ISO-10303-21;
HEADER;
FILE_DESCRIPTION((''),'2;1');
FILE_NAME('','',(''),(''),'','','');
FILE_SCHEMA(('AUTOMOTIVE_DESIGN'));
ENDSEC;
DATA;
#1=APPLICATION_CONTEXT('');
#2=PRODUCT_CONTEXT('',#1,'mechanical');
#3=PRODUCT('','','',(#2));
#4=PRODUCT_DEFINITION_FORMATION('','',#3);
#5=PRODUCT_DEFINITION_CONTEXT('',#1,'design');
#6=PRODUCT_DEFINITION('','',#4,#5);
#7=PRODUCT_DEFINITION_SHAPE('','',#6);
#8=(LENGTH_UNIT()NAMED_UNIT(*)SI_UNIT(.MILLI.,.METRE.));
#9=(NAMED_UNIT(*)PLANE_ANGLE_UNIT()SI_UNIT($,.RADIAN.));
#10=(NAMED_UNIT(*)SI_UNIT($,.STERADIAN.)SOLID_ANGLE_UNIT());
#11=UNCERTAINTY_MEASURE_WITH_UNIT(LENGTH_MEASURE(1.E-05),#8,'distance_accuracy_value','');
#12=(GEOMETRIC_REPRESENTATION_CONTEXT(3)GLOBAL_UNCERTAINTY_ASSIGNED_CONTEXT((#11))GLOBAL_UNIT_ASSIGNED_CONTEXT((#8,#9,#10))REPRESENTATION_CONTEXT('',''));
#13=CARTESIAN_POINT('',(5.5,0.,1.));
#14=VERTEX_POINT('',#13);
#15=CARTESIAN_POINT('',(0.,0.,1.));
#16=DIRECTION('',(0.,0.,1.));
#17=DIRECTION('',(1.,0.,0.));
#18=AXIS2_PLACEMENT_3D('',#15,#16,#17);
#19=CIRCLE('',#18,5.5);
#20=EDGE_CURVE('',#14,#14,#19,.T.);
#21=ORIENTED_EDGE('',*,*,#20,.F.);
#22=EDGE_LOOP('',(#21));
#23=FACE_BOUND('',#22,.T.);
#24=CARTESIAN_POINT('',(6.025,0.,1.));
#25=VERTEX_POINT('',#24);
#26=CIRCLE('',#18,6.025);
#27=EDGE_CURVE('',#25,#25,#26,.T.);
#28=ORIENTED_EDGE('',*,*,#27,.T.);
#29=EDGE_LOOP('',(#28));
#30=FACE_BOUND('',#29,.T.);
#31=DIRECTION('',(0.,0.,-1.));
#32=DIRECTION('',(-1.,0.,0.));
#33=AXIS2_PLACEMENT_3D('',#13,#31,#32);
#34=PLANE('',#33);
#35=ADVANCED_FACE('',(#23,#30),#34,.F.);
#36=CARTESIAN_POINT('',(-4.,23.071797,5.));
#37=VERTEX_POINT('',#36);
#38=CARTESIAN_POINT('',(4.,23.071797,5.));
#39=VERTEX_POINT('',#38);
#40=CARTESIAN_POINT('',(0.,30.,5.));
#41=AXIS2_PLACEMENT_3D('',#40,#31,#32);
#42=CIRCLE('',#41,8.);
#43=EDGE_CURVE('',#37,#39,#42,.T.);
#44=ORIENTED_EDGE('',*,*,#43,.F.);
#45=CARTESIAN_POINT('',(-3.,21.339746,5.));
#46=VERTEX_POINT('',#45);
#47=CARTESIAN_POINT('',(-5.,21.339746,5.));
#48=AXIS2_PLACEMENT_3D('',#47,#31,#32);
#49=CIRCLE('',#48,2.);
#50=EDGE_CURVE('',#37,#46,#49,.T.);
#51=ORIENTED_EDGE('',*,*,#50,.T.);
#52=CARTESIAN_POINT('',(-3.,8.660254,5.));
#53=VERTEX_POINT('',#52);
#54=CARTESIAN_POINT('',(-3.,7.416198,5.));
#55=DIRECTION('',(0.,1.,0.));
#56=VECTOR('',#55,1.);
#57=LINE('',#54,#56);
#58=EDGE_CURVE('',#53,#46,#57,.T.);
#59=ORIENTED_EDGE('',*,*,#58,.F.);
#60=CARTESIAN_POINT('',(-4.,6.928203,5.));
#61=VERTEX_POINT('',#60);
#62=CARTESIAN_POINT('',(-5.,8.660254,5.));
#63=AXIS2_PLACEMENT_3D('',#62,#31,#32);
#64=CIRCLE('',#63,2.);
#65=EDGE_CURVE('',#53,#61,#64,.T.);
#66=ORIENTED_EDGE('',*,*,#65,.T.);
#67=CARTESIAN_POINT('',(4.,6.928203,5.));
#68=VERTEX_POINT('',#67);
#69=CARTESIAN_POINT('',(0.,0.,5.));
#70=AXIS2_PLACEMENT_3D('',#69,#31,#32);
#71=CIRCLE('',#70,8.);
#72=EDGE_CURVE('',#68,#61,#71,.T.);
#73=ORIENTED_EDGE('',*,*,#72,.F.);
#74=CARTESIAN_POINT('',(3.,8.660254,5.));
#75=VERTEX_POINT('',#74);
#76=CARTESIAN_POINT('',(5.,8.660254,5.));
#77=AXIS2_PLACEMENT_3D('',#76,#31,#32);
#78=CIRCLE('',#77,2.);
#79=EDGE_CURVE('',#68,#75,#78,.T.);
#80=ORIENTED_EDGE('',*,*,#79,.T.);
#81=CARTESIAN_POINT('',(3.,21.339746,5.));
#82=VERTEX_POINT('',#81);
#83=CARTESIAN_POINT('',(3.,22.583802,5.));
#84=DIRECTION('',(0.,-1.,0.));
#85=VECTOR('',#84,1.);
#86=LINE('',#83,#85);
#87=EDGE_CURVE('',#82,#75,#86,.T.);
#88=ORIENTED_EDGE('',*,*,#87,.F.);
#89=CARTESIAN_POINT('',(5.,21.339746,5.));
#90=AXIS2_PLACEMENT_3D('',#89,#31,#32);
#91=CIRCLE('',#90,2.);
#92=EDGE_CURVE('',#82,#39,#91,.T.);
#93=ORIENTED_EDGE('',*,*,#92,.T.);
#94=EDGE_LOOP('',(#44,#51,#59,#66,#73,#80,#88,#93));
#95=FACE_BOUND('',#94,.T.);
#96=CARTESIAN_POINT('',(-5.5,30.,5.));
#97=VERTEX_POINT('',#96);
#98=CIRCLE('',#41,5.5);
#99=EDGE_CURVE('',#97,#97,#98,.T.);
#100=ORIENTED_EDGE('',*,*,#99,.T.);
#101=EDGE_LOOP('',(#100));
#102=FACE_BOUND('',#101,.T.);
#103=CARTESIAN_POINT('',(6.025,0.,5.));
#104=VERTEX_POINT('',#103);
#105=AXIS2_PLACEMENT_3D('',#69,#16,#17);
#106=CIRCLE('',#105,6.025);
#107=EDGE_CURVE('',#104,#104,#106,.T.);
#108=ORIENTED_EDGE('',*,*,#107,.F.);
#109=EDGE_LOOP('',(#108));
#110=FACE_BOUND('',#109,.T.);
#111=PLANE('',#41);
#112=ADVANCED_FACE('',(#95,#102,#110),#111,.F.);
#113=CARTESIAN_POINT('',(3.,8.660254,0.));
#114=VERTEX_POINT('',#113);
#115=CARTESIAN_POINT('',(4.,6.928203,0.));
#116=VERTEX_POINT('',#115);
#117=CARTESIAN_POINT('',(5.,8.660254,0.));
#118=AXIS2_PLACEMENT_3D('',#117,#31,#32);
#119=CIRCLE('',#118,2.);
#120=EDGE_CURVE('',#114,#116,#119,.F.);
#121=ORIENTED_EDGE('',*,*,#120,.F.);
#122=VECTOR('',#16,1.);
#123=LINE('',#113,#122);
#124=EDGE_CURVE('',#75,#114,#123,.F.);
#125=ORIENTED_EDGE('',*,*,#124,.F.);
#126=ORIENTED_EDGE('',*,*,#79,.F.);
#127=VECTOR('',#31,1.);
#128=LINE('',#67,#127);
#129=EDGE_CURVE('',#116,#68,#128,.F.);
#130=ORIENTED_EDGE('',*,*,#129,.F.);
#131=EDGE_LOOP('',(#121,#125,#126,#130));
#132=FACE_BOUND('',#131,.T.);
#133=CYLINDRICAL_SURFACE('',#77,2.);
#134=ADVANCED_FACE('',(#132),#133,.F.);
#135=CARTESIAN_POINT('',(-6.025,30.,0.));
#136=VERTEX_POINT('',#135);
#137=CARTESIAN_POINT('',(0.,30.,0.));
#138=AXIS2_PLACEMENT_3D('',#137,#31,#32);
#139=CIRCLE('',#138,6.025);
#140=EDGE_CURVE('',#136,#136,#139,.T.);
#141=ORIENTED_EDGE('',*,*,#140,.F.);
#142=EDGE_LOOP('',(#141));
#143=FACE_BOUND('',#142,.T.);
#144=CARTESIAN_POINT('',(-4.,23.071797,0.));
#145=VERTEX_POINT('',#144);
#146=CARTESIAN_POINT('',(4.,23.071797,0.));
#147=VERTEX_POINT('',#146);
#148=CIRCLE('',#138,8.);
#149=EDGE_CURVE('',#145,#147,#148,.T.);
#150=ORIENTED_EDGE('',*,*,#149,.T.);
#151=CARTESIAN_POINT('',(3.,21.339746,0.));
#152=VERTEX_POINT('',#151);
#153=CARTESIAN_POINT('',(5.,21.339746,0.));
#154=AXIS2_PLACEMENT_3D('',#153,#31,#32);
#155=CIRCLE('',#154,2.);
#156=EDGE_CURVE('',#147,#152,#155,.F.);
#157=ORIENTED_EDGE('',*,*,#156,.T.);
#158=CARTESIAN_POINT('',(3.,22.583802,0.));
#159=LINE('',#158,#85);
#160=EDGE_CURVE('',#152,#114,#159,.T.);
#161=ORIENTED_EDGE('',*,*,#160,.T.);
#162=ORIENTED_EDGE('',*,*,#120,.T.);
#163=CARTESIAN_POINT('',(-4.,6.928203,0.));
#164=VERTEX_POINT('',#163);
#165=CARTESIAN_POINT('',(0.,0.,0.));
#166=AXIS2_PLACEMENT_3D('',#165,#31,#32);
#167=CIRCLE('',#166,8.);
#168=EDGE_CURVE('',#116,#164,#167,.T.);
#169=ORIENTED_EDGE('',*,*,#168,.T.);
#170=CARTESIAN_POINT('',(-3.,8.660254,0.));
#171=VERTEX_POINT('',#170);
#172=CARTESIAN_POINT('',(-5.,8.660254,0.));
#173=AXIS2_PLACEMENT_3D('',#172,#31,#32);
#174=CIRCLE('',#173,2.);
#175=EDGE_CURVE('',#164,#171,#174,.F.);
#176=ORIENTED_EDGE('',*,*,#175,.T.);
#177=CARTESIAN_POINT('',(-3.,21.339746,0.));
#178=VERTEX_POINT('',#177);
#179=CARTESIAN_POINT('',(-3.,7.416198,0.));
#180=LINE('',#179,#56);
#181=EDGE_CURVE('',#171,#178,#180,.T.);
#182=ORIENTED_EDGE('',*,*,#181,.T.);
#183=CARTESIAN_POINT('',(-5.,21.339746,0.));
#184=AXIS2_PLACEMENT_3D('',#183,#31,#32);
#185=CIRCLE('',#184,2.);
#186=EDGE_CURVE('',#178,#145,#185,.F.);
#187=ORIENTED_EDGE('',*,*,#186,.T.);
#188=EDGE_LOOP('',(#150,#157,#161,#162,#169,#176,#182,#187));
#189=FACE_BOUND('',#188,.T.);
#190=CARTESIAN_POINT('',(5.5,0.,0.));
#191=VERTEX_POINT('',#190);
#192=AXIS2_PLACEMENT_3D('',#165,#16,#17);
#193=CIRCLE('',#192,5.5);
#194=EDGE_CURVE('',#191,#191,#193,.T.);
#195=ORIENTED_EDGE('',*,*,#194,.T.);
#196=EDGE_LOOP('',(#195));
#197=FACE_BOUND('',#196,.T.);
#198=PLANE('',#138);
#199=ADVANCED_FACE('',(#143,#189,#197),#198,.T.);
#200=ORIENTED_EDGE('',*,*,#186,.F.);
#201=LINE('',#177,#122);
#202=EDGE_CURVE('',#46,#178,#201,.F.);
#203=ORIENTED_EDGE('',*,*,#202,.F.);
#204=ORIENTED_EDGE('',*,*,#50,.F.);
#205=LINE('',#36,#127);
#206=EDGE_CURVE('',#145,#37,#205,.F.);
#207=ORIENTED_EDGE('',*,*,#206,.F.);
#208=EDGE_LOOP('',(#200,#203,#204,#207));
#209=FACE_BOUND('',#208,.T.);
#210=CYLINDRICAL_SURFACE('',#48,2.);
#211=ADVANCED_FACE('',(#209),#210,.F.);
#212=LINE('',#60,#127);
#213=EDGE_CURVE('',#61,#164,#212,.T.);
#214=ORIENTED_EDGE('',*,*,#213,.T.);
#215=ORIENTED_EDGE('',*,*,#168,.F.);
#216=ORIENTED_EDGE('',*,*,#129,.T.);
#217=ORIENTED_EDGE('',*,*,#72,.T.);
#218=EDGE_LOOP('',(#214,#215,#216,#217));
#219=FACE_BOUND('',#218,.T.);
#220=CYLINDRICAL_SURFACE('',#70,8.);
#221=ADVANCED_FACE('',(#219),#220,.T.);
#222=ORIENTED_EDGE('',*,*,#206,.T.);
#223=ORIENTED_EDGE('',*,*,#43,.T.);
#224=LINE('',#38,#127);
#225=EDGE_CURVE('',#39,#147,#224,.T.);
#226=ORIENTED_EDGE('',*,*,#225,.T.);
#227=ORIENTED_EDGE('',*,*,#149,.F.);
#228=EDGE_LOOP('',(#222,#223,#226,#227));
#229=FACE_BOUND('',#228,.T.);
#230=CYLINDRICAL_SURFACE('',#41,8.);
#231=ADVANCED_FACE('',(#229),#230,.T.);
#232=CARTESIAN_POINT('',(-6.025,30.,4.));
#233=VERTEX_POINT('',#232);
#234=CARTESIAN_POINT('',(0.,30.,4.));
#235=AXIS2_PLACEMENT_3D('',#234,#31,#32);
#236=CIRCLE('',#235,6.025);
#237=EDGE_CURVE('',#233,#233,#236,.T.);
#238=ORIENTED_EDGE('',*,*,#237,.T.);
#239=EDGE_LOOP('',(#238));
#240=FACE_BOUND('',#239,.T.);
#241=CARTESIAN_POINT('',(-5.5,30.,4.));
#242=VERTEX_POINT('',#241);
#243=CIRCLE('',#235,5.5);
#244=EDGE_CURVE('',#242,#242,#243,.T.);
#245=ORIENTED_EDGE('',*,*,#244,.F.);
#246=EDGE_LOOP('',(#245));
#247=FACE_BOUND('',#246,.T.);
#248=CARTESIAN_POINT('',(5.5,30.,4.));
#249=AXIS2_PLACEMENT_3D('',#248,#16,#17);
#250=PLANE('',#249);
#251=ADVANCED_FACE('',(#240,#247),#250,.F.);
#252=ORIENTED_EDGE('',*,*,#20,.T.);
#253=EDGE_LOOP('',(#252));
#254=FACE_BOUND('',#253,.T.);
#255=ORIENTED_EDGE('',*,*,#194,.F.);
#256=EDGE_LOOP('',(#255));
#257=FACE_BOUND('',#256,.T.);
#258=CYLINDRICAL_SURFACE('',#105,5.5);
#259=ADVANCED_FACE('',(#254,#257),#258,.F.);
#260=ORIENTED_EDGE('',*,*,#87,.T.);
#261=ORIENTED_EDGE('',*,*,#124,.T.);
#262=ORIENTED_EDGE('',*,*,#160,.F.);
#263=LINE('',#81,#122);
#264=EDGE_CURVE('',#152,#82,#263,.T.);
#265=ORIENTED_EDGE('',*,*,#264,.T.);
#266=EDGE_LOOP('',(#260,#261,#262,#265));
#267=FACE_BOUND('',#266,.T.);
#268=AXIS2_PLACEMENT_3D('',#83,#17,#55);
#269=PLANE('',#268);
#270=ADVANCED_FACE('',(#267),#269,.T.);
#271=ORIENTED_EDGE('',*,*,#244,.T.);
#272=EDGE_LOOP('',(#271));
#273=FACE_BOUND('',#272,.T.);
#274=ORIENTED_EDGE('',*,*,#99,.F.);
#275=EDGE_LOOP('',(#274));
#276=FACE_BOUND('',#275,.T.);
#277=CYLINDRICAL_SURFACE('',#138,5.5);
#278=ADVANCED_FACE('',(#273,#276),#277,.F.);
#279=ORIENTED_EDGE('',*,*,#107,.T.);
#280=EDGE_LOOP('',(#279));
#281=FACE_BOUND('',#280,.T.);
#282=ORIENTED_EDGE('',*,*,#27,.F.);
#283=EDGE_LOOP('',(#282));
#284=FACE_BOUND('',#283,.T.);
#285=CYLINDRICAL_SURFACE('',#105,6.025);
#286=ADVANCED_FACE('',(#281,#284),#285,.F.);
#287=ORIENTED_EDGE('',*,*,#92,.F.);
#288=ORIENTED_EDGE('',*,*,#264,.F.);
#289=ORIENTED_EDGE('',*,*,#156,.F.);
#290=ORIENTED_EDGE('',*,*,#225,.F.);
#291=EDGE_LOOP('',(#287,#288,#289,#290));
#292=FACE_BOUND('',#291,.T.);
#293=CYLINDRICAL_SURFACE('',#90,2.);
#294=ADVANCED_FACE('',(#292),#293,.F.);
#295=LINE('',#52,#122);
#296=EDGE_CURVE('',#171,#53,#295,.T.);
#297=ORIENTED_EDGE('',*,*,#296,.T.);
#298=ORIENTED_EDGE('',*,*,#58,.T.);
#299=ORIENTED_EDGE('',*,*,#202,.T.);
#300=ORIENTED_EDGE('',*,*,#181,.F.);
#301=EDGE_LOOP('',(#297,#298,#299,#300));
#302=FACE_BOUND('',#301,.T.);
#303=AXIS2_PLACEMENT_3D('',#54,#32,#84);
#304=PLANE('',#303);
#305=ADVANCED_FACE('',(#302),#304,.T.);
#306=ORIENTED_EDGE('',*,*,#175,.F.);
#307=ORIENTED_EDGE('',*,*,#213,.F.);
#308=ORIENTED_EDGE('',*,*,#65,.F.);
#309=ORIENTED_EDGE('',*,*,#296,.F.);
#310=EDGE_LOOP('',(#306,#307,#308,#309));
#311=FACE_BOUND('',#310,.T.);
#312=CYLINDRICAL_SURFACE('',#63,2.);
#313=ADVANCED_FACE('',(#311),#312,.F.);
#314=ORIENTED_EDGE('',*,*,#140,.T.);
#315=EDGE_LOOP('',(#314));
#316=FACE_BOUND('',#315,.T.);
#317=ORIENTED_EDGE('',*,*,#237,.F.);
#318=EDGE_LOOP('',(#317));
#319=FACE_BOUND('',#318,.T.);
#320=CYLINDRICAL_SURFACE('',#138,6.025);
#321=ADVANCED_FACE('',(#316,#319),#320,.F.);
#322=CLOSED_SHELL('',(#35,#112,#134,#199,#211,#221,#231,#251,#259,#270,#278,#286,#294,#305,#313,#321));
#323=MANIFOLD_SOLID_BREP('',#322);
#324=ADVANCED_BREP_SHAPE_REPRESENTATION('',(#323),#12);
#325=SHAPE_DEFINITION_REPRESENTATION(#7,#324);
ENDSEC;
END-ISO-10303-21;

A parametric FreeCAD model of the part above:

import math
import FreeCAD as App
import Part
import Sketcher

V = App.Vector


def edges_at(feature, points):
    """Names of the edges that pass closest to the given points."""
    edges = feature.Shape.Edges
    near = lambda p: min(range(len(edges)), key=lambda i: edges[i].distToShape(Part.Vertex(*p))[0])
    return sorted({f"Edge{near(p) + 1}" for p in points})

doc = App.newDocument("Part")
params = doc.addObject("Spreadsheet::Sheet", "Params")
for row, (alias, value) in enumerate([
    ("sketch1_radius", "8 mm"),
    ("pad1_length", "5 mm"),
    ("sketch2_diameter", "11 mm"),
    ("hole_diameter", "11 mm"),
    ("hole_cbore_diameter", "12.05 mm"),
    ("hole_cbore_depth", "4 mm"),
    ("sketch3_diameter", "11 mm"),
    ("hole2_diameter", "11 mm"),
    ("hole2_cbore_diameter", "12.05 mm"),
    ("hole2_cbore_depth", "4 mm"),
    ("fillet_radius", "2 mm"),
], start=1):
    params.set(f"A{row}", alias)
    params.set(f"B{row}", "=" + value)
    params.setAlias(f"B{row}", alias)

body = doc.addObject("PartDesign::Body", "Body")

# Sketch on XY plane
sketch1 = body.newObject("Sketcher::SketchObject", "Sketch")
sketch1.AttachmentSupport = (doc.getObject("XY_Plane"), [""])
sketch1.MapMode = "FlatFace"
sketch1.addGeometry(Part.LineSegment(V(3, 23, 0), V(3, 7, 0)), False)
sketch1.addGeometry(Part.ArcOfCircle(Part.Circle(V(0, 0, 0), V(0, 0, 1), 8), math.radians(112), math.radians(428)), False)
sketch1.addGeometry(Part.LineSegment(V(-3, 7, 0), V(-3, 23, 0)), False)
sketch1.addGeometry(Part.ArcOfCircle(Part.Circle(V(0, 30, 0), V(0, 0, 1), 8), math.radians(-68), math.radians(248)), False)
sketch1.addConstraint(Sketcher.Constraint("Coincident", 0, 2, 1, 2))
sketch1.addConstraint(Sketcher.Constraint("Coincident", 1, 1, 2, 1))
sketch1.addConstraint(Sketcher.Constraint("Coincident", 2, 2, 3, 2))
sketch1.addConstraint(Sketcher.Constraint("Coincident", 3, 1, 0, 1))
sketch1.addConstraint(Sketcher.Constraint("Vertical", 0))
sketch1.addConstraint(Sketcher.Constraint("Vertical", 2))
sketch1.addConstraint(Sketcher.Constraint("Coincident", 1, 3, -1, 1))
sketch1.addConstraint(Sketcher.Constraint("Equal", 1, 3))
sketch1.addConstraint(Sketcher.Constraint("Symmetric", 2, 2, 3, 1, -2))
sketch1.addConstraint(Sketcher.Constraint("Radius", 1, 8.0))
sketch1.addConstraint(Sketcher.Constraint("DistanceY", -1, 1, 3, 3, 30.0))
sketch1.addConstraint(Sketcher.Constraint("DistanceX", -1, 1, 0, 2, 3.0))
sketch1.setExpression("Constraints[9]", "Params.sketch1_radius")
pad1 = body.newObject("PartDesign::Pad", "Pad")
pad1.Profile = sketch1
pad1.setExpression("Length", "Params.pad1_length")

# Sketch on XY plane
sketch2 = body.newObject("Sketcher::SketchObject", "Sketch001")
sketch2.AttachmentSupport = (doc.getObject("XY_Plane"), [""])
sketch2.MapMode = "FlatFace"
sketch2.addGeometry(Part.Circle(V(0, 30, 0), V(0, 0, 1), 6), False)
sketch2.addConstraint(Sketcher.Constraint("PointOnObject", 0, 3, -2))
sketch2.addConstraint(Sketcher.Constraint("Diameter", 0, 11.0))
sketch2.addConstraint(Sketcher.Constraint("DistanceY", -1, 1, 0, 3, 30.0))
sketch2.setExpression("Constraints[1]", "Params.sketch2_diameter")
doc.recompute()
hole = body.newObject("PartDesign::Hole", "Hole")
hole.Profile = sketch2
hole.ThreadType = "None"
hole.setExpression("Diameter", "Params.hole_diameter")
hole.DepthType = "ThroughAll"
hole.HoleCutType = "Counterbore"
hole.setExpression("HoleCutDiameter", "Params.hole_cbore_diameter")
hole.setExpression("HoleCutDepth", "Params.hole_cbore_depth")
hole.Reversed = True

# Sketch on XY plane
sketch3 = body.newObject("Sketcher::SketchObject", "Sketch002")
sketch3.AttachmentSupport = (doc.getObject("XY_Plane"), [""])
sketch3.MapMode = "FlatFace"
sketch3.AttachmentOffset = App.Placement(V(0, 0, 5), App.Rotation())
sketch3.addGeometry(Part.Circle(V(0, 0, 0), V(0, 0, 1), 6), False)
sketch3.addConstraint(Sketcher.Constraint("Coincident", 0, 3, -1, 1))
sketch3.addConstraint(Sketcher.Constraint("Diameter", 0, 11.0))
sketch3.setExpression("Constraints[1]", "Params.sketch3_diameter")
doc.recompute()
hole2 = body.newObject("PartDesign::Hole", "Hole001")
hole2.Profile = sketch3
hole2.ThreadType = "None"
hole2.setExpression("Diameter", "Params.hole2_diameter")
hole2.DepthType = "ThroughAll"
hole2.HoleCutType = "Counterbore"
hole2.setExpression("HoleCutDiameter", "Params.hole2_cbore_diameter")
hole2.setExpression("HoleCutDepth", "Params.hole2_cbore_depth")
doc.recompute()

fillet = body.newObject("PartDesign::Fillet", "Fillet")
fillet.Base = (hole2, edges_at(hole2, [
    (-3, 22.584, 2.5),
    (-3, 7.416, 2.5),
    (3, 7.416, 2.5),
    (3, 22.584, 2.5),
]))
fillet.setExpression("Radius", "Params.fillet_radius")

doc.recompute()
